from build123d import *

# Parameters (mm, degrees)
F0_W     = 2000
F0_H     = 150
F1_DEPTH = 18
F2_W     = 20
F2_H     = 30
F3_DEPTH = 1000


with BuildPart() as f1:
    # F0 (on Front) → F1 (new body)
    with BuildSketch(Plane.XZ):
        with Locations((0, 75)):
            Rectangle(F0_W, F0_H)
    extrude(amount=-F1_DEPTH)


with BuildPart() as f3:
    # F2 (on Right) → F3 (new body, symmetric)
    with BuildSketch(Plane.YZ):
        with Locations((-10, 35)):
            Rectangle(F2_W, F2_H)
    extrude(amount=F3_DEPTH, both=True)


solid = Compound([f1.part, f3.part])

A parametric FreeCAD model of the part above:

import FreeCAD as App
import Part
import Sketcher


def add_polygon(sketch, points):
    """Adds a closed chain of lines whose ends are joined by coincident constraints."""
    first, n = sketch.GeometryCount, len(points)
    for a, b in zip(points, points[1:] + points[:1]):
        sketch.addGeometry(Part.LineSegment(App.Vector(*a, 0), App.Vector(*b, 0)), False)
    for i in range(n):
        sketch.addConstraint(Sketcher.Constraint("Coincident", first + i, 2, first + (i + 1) % n, 1))

doc = App.newDocument("Part")
body = doc.addObject("PartDesign::Body", "Body")

# Sketch on XZ plane
sketch1 = body.newObject("Sketcher::SketchObject", "Sketch")
sketch1.AttachmentSupport = (doc.getObject("XZ_Plane"), [""])
sketch1.MapMode = "FlatFace"
add_polygon(sketch1, [(-1000, 150), (-1000, 0), (1000, 0), (1000, 150)])  # lines 0-3
sketch1.addConstraint(Sketcher.Constraint("Vertical", 0))
sketch1.addConstraint(Sketcher.Constraint("Horizontal", 1))
sketch1.addConstraint(Sketcher.Constraint("Vertical", 2))
sketch1.addConstraint(Sketcher.Constraint("Horizontal", 3))
sketch1.addConstraint(Sketcher.Constraint("Symmetric", 0, 2, 1, 2, -1, 1))
sketch1.addConstraint(Sketcher.Constraint("DistanceX", 1, 1, 1, 2, 2000.0))
sketch1.addConstraint(Sketcher.Constraint("DistanceY", 0, 2, 0, 1, 150.0))
pad1 = body.newObject("PartDesign::Pad", "Pad")
pad1.Profile = sketch1
pad1.Length = 18
pad1.Reversed = True
body2 = doc.addObject("PartDesign::Body", "Body001")

# Sketch on YZ plane
sketch2 = body2.newObject("Sketcher::SketchObject", "Sketch001")
sketch2.AttachmentSupport = (doc.getObject("YZ_Plane001"), [""])
sketch2.MapMode = "FlatFace"
add_polygon(sketch2, [(-20, 50), (-20, 20), (0, 20), (0, 50)])  # lines 0-3
sketch2.addConstraint(Sketcher.Constraint("Vertical", 0))
sketch2.addConstraint(Sketcher.Constraint("Horizontal", 1))
sketch2.addConstraint(Sketcher.Constraint("Vertical", 2))
sketch2.addConstraint(Sketcher.Constraint("Horizontal", 3))
sketch2.addConstraint(Sketcher.Constraint("PointOnObject", 1, 2, -2))
sketch2.addConstraint(Sketcher.Constraint("DistanceX", 1, 1, 1, 2, 20.0))
sketch2.addConstraint(Sketcher.Constraint("DistanceY", 0, 2, 0, 1, 30.0))
sketch2.addConstraint(Sketcher.Constraint("DistanceY", -1, 1, 0, 2, 20.0))
pad2 = body2.newObject("PartDesign::Pad", "Pad001")
pad2.Profile = sketch2
pad2.Length = 2000
pad2.Midplane = True

doc.recompute()
